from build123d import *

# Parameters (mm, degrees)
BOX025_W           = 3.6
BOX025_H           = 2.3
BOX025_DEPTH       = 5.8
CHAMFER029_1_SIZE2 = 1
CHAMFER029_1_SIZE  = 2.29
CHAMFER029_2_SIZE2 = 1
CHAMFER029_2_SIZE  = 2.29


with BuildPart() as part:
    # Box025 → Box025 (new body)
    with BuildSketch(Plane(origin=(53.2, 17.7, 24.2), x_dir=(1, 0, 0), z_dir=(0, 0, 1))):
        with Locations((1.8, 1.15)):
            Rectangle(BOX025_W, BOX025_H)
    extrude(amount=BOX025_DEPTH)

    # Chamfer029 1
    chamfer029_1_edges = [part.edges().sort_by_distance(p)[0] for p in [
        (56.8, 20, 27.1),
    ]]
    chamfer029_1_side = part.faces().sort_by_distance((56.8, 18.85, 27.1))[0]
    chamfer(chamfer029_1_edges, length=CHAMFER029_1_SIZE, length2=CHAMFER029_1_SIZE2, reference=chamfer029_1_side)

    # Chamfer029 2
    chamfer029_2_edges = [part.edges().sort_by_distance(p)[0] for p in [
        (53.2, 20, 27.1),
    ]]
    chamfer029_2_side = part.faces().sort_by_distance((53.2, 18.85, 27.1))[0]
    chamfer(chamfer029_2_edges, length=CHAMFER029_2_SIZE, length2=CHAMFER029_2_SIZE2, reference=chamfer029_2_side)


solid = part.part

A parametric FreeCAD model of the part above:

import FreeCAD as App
import Part
import Sketcher
Q = App.Units.Quantity


def edges_at(feature, points):
    """Names of the edges that pass closest to the given points."""
    edges = feature.Shape.Edges
    near = lambda p: min(range(len(edges)), key=lambda i: edges[i].distToShape(Part.Vertex(*p))[0])
    return sorted({f"Edge{near(p) + 1}" for p in points})


def add_polygon(sketch, points):
    """Adds a closed chain of lines whose ends are joined by coincident constraints."""
    first, n = sketch.GeometryCount, len(points)
    for a, b in zip(points, points[1:] + points[:1]):
        sketch.addGeometry(Part.LineSegment(App.Vector(*a, 0), App.Vector(*b, 0)), False)
    for i in range(n):
        sketch.addConstraint(Sketcher.Constraint("Coincident", first + i, 2, first + (i + 1) % n, 1))

doc = App.newDocument("Part")
params = doc.addObject("Spreadsheet::Sheet", "Params")
for row, (alias, value) in enumerate([
    ("sketch1_width", "3.6 mm"),
    ("sketch1_height", "2.3 mm"),
    ("pad1_length", "5.8 mm"),
    ("chamfer_size", "2.29 mm"),
    ("chamfer_size2", "1 mm"),
    ("chamfer2_size", "2.29 mm"),
    ("chamfer2_size2", "1 mm"),
], start=1):
    params.set(f"A{row}", alias)
    params.set(f"B{row}", "=" + value)
    params.setAlias(f"B{row}", alias)

body = doc.addObject("PartDesign::Body", "Body")

# Sketch on XY plane
sketch1 = doc.addObject("Sketcher::SketchObject", "Sketch")
body.addObject(sketch1)
sketch1.AttachmentSupport = (doc.XY_Plane, [""])
sketch1.MapMode = "FlatFace"
sketch1.AttachmentOffset = App.Placement(App.Vector(0, 0, 24.2), App.Rotation())
add_polygon(sketch1, [(53.2, 20), (53.2, 17.7), (56.8, 17.7), (56.8, 20)])  # lines 0-3
sketch1.addConstraint(Sketcher.Constraint("Vertical", 0))
sketch1.addConstraint(Sketcher.Constraint("Horizontal", 1))
sketch1.addConstraint(Sketcher.Constraint("Vertical", 2))
sketch1.addConstraint(Sketcher.Constraint("Horizontal", 3))
sketch1.addConstraint(Sketcher.Constraint("DistanceX", 1, 1, 1, 2, Q("3.6 mm")))
sketch1.addConstraint(Sketcher.Constraint("DistanceY", 0, 2, 0, 1, Q("2.3 mm")))
sketch1.addConstraint(Sketcher.Constraint("DistanceY", -1, 1, 2, 2, Q("20 mm")))
sketch1.addConstraint(Sketcher.Constraint("DistanceX", -1, 1, 0, 2, Q("53.2 mm")))
sketch1.setExpression("Constraints[8]", "Params.sketch1_width")
sketch1.setExpression("Constraints[9]", "Params.sketch1_height")
pad1 = doc.addObject("PartDesign::Pad", "Pad")
body.addObject(pad1)
pad1.Profile = sketch1
pad1.setExpression("Length", "Params.pad1_length")
doc.recompute()

chamfer = doc.addObject("PartDesign::Chamfer", "Chamfer")
body.addObject(chamfer)
chamfer.Base = (pad1, edges_at(pad1, [(56.8, 20, 27.1)]))
chamfer.ChamferType = "Two distances"
chamfer.setExpression("Size", "Params.chamfer_size")
chamfer.setExpression("Size2", "Params.chamfer_size2")
doc.recompute()

chamfer2 = doc.addObject("PartDesign::Chamfer", "Chamfer001")
body.addObject(chamfer2)
chamfer2.Base = (chamfer, edges_at(chamfer, [(53.2, 20, 27.1)]))
chamfer2.ChamferType = "Two distances"
chamfer2.setExpression("Size", "Params.chamfer2_size")
chamfer2.setExpression("Size2", "Params.chamfer2_size2")
chamfer2.FlipDirection = True

doc.recompute()
